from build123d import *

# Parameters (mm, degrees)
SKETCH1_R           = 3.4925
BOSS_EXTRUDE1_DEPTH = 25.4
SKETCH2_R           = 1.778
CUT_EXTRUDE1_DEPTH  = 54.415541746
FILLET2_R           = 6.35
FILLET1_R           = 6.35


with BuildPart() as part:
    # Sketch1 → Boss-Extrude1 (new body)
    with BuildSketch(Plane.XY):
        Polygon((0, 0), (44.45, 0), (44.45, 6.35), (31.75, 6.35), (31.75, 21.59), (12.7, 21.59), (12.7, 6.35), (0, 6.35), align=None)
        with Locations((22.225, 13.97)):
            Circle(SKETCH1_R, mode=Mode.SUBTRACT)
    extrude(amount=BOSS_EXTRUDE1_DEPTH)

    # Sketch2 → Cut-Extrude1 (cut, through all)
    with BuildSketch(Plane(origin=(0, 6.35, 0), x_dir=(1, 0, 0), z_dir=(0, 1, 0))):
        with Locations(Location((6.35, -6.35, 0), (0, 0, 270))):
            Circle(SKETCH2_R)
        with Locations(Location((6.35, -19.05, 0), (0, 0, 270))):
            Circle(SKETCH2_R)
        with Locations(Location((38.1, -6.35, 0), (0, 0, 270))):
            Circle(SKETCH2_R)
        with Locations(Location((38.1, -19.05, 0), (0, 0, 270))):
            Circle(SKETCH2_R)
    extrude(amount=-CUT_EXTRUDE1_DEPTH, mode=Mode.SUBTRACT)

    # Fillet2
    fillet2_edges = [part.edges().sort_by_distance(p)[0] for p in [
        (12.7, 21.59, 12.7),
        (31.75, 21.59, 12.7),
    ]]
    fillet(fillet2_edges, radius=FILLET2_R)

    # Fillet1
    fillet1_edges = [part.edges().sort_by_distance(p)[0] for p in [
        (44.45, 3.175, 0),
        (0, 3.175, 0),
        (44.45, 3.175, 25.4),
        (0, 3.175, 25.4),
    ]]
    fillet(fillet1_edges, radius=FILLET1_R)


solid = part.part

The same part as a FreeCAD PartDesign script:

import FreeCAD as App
import Part
import Sketcher

V = App.Vector
Q = App.Units.Quantity


def edges_at(feature, points):
    """Names of the edges that pass closest to the given points."""
    edges = feature.Shape.Edges
    near = lambda p: min(range(len(edges)), key=lambda i: edges[i].distToShape(Part.Vertex(*p))[0])
    return sorted({f"Edge{near(p) + 1}" for p in points})


def add_polygon(sketch, points):
    """Adds a closed chain of lines whose ends are joined by coincident constraints."""
    first, n = sketch.GeometryCount, len(points)
    for a, b in zip(points, points[1:] + points[:1]):
        sketch.addGeometry(Part.LineSegment(App.Vector(*a, 0), App.Vector(*b, 0)), False)
    for i in range(n):
        sketch.addConstraint(Sketcher.Constraint("Coincident", first + i, 2, first + (i + 1) % n, 1))

doc = App.newDocument("Part")
body = doc.addObject("PartDesign::Body", "Body")

sketch1 = body.newObject("Sketcher::SketchObject", "Sketch")
sketch1.AttachmentSupport = (doc.getObject("XY_Plane"), [""])
sketch1.MapMode = "FlatFace"
add_polygon(sketch1, [(0, 0), (44.45, 0), (44.45, 6.35), (31.75, 6.35), (31.75, 21.59), (12.7, 21.59), (12.7, 6.35), (0, 6.35)])
sketch1.addGeometry(Part.Circle(V(22.225, 13.97, 0), V(0, 0, 1), 3.4925), False)
sketch1.addConstraint([
    Sketcher.Constraint("Horizontal", 0),
    Sketcher.Constraint("Vertical", 1),
    Sketcher.Constraint("Horizontal", 2),
    Sketcher.Constraint("Vertical", 3),
    Sketcher.Constraint("Horizontal", 4),
    Sketcher.Constraint("Vertical", 5),
    Sketcher.Constraint("Horizontal", 6),
    Sketcher.Constraint("Vertical", 7),
    Sketcher.Constraint("Coincident", 7, 2, -1, 1),
    Sketcher.Constraint("Horizontal", 2, 2, 5, 2),
    Sketcher.Constraint("Equal", 2, 6),
    Sketcher.Constraint("Diameter", 8, Q("0.275 in")),
    Sketcher.Constraint("DistanceX", 2, 2, 2, 1, Q("0.5 in")),
    Sketcher.Constraint("DistanceY", 3, 1, 3, 2, Q("0.6 in")),
    Sketcher.Constraint("DistanceX", 0, 1, 0, 2, Q("1.75 in")),
    Sketcher.Constraint("DistanceY", 1, 1, 1, 2, Q("0.25 in")),
    Sketcher.Constraint("DistanceY", 1, 2, 8, 3, Q("0.3 in")),
    Sketcher.Constraint("DistanceX", -1, 1, 8, 3, Q("0.875 in")),
])
pad1 = body.newObject("PartDesign::Pad", "Pad")
pad1.Profile = sketch1
pad1.Length = Q("1 in")

sketch2 = body.newObject("Sketcher::SketchObject", "Sketch001")
sketch2.AttachmentSupport = (doc.getObject("XZ_Plane"), [""])
sketch2.MapMode = "FlatFace"
sketch2.AttachmentOffset = App.Placement(V(0, 0, -0.25 * 25.4), App.Rotation())
sketch2.addGeometry([
    Part.Circle(V(6.35, 6.35, 0), V(0, 0, 1), 1.778),
    Part.Circle(V(6.35, 19.05, 0), V(0, 0, 1), 1.778),
    Part.Circle(V(38.1, 6.35, 0), V(0, 0, 1), 1.778),
    Part.Circle(V(38.1, 19.05, 0), V(0, 0, 1), 1.778),
], False)
sketch2.addConstraint([
    Sketcher.Constraint("Equal", 0, 1),
    Sketcher.Constraint("Equal", 1, 2),
    Sketcher.Constraint("Equal", 2, 3),
    Sketcher.Constraint("Horizontal", 0, 3, 2, 3),
    Sketcher.Constraint("Horizontal", 1, 3, 3, 3),
    Sketcher.Constraint("Vertical", 0, 3, 1, 3),
    Sketcher.Constraint("Vertical", 2, 3, 3, 3),
    Sketcher.Constraint("Diameter", 0, Q("0.14 in")),
    Sketcher.Constraint("DistanceX", -1, 1, 2, 3, Q("1.5 in")),
    Sketcher.Constraint("DistanceY", 0, 3, 1, 3, Q("0.5 in")),
    Sketcher.Constraint("DistanceX", -1, 1, 0, 3, Q("0.25 in")),
    Sketcher.Constraint("DistanceY", -1, 1, 0, 3, Q("0.25 in")),
])
pocket1 = body.newObject("PartDesign::Pocket", "Pocket")
pocket1.Profile = sketch2
pocket1.Type = "ThroughAll"
pocket1.Reversed = True
doc.recompute()

fillet = body.newObject("PartDesign::Fillet", "Fillet")
fillet.Base = (pocket1, edges_at(pocket1, [(12.7, 21.59, 12.7), (31.75, 21.59, 12.7)]))
fillet.Radius = Q("0.25 in")
doc.recompute()

fillet2 = body.newObject("PartDesign::Fillet", "Fillet001")
fillet2.Base = (fillet, edges_at(fillet, [
    (44.45, 3.175, 0),
    (0, 3.175, 0),
    (44.45, 3.175, 25.4),
    (0, 3.175, 25.4),
]))
fillet2.Radius = Q("0.25 in")

doc.recompute()
